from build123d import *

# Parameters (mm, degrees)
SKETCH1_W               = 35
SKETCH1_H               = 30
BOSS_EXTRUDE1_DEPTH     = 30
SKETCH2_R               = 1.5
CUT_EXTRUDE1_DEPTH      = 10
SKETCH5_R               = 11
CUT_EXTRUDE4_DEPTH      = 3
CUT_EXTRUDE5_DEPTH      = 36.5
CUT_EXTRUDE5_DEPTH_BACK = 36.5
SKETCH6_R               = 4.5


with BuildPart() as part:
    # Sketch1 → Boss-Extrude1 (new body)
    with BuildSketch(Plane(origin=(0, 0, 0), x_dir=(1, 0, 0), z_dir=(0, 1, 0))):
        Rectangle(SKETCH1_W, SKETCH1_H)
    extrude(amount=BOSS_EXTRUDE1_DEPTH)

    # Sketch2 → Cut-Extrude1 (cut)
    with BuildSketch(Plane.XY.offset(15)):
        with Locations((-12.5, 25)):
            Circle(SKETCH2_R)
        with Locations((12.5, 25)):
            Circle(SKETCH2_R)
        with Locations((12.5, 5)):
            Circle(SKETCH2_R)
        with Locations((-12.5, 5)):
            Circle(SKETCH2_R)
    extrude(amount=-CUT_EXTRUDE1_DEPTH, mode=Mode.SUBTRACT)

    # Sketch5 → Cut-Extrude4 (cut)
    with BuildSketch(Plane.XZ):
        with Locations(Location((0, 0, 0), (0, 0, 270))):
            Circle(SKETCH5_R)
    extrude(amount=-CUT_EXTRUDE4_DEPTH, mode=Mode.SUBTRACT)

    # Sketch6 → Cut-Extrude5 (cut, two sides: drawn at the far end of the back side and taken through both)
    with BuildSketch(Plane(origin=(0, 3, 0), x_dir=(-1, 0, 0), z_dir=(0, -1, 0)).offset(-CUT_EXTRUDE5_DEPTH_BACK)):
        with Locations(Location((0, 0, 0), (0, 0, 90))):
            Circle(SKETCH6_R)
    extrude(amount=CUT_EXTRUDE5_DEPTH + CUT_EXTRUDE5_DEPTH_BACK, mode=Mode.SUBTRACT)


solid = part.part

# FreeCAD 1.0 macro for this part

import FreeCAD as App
import Part
import Sketcher
from FreeCAD import Vector
Q = App.Units.Quantity

doc = App.newDocument("Part")
body = doc.addObject("PartDesign::Body", "Body")

# Sketch on XZ plane
sketch1 = doc.addObject("Sketcher::SketchObject", "Sketch")
body.addObject(sketch1)
sketch1.AttachmentSupport = (doc.XZ_Plane, [""])
sketch1.MapMode = "FlatFace"
sketch1.addGeometry([
    Part.LineSegment(Vector(-18, -15, 0), Vector(-18, 15, 0)),
    Part.LineSegment(Vector(-18, 15, 0), Vector(18, 15, 0)),
    Part.LineSegment(Vector(18, 15, 0), Vector(18, -15, 0)),
    Part.LineSegment(Vector(18, -15, 0), Vector(-18, -15, 0)),
], False)
sketch1.addConstraint([
    Sketcher.Constraint("Coincident", 0, 2, 1, 1),
    Sketcher.Constraint("Coincident", 1, 2, 2, 1),
    Sketcher.Constraint("Coincident", 2, 2, 3, 1),
    Sketcher.Constraint("Coincident", 3, 2, 0, 1),
    Sketcher.Constraint("Vertical", 0),
    Sketcher.Constraint("Horizontal", 1),
    Sketcher.Constraint("Vertical", 2),
    Sketcher.Constraint("Horizontal", 3),
    Sketcher.Constraint("Symmetric", 0, 2, 2, 2, -1, 1),
    Sketcher.Constraint("DistanceX", 1, 1, 1, 2, Q("35 mm")),
    Sketcher.Constraint("DistanceY", 0, 1, 0, 2, Q("30 mm")),
])
pad1 = doc.addObject("PartDesign::Pad", "Pad")
body.addObject(pad1)
pad1.Profile = sketch1
pad1.Length = 30
pad1.Reversed = True

# Sketch on XY plane
sketch2 = doc.addObject("Sketcher::SketchObject", "Sketch001")
body.addObject(sketch2)
sketch2.AttachmentSupport = (doc.XY_Plane, [""])
sketch2.MapMode = "FlatFace"
sketch2.AttachmentOffset = App.Placement(Vector(0, 0, 15), App.Rotation())
sketch2.addGeometry([
    Part.Circle(Vector(-12.5, 25, 0), Vector(0, 0, 1), 1.5),
    Part.Circle(Vector(12.5, 25, 0), Vector(0, 0, 1), 1.5),
    Part.Circle(Vector(12.5, 5, 0), Vector(0, 0, 1), 1.5),
    Part.Circle(Vector(-12.5, 5, 0), Vector(0, 0, 1), 1.5),
], False)
sketch2.addConstraint([
    Sketcher.Constraint("Equal", 0, 1),
    Sketcher.Constraint("Equal", 1, 2),
    Sketcher.Constraint("Equal", 2, 3),
    Sketcher.Constraint("Symmetric", 0, 3, 1, 3, -2),
    Sketcher.Constraint("Symmetric", 2, 3, 3, 3, -2),
    Sketcher.Constraint("Vertical", 1, 3, 2, 3),
    Sketcher.Constraint("Diameter", 0, Q("3 mm")),
    Sketcher.Constraint("DistanceY", -1, 1, 0, 3, Q("25 mm")),
    Sketcher.Constraint("DistanceY", -1, 1, 2, 3, Q("5 mm")),
    Sketcher.Constraint("DistanceX", 0, 3, 1, 3, Q("25 mm")),
])
pocket1 = doc.addObject("PartDesign::Pocket", "Pocket")
body.addObject(pocket1)
pocket1.Profile = sketch2
pocket1.Length = 10

# Sketch on XZ plane
sketch3 = doc.addObject("Sketcher::SketchObject", "Sketch002")
body.addObject(sketch3)
sketch3.AttachmentSupport = (doc.XZ_Plane, [""])
sketch3.MapMode = "FlatFace"
sketch3.addGeometry(Part.Circle(Vector(0, 0, 0), Vector(0, 0, 1), 11), False)
sketch3.addConstraint([
    Sketcher.Constraint("Coincident", 0, 3, -1, 1),
    Sketcher.Constraint("Diameter", 0, Q("22 mm")),
])
pocket2 = doc.addObject("PartDesign::Pocket", "Pocket001")
body.addObject(pocket2)
pocket2.Profile = sketch3
pocket2.Length = 3

# Sketch on XZ plane
sketch4 = doc.addObject("Sketcher::SketchObject", "Sketch003")
body.addObject(sketch4)
sketch4.AttachmentSupport = (doc.XZ_Plane, [""])
sketch4.MapMode = "FlatFace"
sketch4.AttachmentOffset = App.Placement(Vector(0, 0, -3), App.Rotation())
sketch4.addGeometry(Part.Circle(Vector(0, 0, 0), Vector(0, 0, 1), 4.5), False)
sketch4.addConstraint([
    Sketcher.Constraint("Coincident", 0, 3, -1, 1),
    Sketcher.Constraint("Diameter", 0, Q("9 mm")),
])
pocket3 = doc.addObject("PartDesign::Pocket", "Pocket002")
body.addObject(pocket3)
pocket3.Profile = sketch4
pocket3.Type = "ThroughAll"
pocket3.Midplane = True

doc.recompute()
